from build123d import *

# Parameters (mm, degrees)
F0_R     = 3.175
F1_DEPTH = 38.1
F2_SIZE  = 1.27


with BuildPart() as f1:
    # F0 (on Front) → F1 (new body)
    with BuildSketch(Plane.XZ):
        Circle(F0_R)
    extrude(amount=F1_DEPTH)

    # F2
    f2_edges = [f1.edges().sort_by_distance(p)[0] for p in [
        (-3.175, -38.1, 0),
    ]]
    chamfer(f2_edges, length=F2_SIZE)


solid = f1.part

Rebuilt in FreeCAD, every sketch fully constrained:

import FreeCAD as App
import Part
import Sketcher

V = App.Vector
Q = App.Units.Quantity


def edges_at(feature, points):
    """Names of the edges that pass closest to the given points."""
    edges = feature.Shape.Edges
    near = lambda p: min(range(len(edges)), key=lambda i: edges[i].distToShape(Part.Vertex(*p))[0])
    return sorted({f"Edge{near(p) + 1}" for p in points})

doc = App.newDocument("Part")
params = doc.addObject("Spreadsheet::Sheet", "Params")
for row, (alias, value) in enumerate([
    ("sketch1_diameter", "0.25 in"),
    ("pad1_length", "1.5 in"),
    ("chamfer_size", "0.05 in"),
], start=1):
    params.set(f"A{row}", alias)
    params.set(f"B{row}", "=" + value)
    params.setAlias(f"B{row}", alias)

body = doc.addObject("PartDesign::Body", "Body")

sketch1 = body.newObject("Sketcher::SketchObject", "Sketch")
sketch1.AttachmentSupport = (doc.getObject("XZ_Plane"), [""])
sketch1.MapMode = "FlatFace"
sketch1.addGeometry(Part.Circle(V(0, 0, 0), V(0, 0, 1), 3.2), False)
sketch1.addConstraint([
    Sketcher.Constraint("Coincident", 0, 3, -1, 1),
    Sketcher.Constraint("Diameter", 0, Q("0.25 in")),
])
sketch1.setExpression("Constraints[1]", "Params.sketch1_diameter")
pad1 = body.newObject("PartDesign::Pad", "Pad")
pad1.Profile = sketch1
pad1.setExpression("Length", "Params.pad1_length")
doc.recompute()

chamfer = body.newObject("PartDesign::Chamfer", "Chamfer")
chamfer.Base = (pad1, edges_at(pad1, [(-3.175, -38.1, 0)]))
chamfer.setExpression("Size", "Params.chamfer_size")

doc.recompute()
